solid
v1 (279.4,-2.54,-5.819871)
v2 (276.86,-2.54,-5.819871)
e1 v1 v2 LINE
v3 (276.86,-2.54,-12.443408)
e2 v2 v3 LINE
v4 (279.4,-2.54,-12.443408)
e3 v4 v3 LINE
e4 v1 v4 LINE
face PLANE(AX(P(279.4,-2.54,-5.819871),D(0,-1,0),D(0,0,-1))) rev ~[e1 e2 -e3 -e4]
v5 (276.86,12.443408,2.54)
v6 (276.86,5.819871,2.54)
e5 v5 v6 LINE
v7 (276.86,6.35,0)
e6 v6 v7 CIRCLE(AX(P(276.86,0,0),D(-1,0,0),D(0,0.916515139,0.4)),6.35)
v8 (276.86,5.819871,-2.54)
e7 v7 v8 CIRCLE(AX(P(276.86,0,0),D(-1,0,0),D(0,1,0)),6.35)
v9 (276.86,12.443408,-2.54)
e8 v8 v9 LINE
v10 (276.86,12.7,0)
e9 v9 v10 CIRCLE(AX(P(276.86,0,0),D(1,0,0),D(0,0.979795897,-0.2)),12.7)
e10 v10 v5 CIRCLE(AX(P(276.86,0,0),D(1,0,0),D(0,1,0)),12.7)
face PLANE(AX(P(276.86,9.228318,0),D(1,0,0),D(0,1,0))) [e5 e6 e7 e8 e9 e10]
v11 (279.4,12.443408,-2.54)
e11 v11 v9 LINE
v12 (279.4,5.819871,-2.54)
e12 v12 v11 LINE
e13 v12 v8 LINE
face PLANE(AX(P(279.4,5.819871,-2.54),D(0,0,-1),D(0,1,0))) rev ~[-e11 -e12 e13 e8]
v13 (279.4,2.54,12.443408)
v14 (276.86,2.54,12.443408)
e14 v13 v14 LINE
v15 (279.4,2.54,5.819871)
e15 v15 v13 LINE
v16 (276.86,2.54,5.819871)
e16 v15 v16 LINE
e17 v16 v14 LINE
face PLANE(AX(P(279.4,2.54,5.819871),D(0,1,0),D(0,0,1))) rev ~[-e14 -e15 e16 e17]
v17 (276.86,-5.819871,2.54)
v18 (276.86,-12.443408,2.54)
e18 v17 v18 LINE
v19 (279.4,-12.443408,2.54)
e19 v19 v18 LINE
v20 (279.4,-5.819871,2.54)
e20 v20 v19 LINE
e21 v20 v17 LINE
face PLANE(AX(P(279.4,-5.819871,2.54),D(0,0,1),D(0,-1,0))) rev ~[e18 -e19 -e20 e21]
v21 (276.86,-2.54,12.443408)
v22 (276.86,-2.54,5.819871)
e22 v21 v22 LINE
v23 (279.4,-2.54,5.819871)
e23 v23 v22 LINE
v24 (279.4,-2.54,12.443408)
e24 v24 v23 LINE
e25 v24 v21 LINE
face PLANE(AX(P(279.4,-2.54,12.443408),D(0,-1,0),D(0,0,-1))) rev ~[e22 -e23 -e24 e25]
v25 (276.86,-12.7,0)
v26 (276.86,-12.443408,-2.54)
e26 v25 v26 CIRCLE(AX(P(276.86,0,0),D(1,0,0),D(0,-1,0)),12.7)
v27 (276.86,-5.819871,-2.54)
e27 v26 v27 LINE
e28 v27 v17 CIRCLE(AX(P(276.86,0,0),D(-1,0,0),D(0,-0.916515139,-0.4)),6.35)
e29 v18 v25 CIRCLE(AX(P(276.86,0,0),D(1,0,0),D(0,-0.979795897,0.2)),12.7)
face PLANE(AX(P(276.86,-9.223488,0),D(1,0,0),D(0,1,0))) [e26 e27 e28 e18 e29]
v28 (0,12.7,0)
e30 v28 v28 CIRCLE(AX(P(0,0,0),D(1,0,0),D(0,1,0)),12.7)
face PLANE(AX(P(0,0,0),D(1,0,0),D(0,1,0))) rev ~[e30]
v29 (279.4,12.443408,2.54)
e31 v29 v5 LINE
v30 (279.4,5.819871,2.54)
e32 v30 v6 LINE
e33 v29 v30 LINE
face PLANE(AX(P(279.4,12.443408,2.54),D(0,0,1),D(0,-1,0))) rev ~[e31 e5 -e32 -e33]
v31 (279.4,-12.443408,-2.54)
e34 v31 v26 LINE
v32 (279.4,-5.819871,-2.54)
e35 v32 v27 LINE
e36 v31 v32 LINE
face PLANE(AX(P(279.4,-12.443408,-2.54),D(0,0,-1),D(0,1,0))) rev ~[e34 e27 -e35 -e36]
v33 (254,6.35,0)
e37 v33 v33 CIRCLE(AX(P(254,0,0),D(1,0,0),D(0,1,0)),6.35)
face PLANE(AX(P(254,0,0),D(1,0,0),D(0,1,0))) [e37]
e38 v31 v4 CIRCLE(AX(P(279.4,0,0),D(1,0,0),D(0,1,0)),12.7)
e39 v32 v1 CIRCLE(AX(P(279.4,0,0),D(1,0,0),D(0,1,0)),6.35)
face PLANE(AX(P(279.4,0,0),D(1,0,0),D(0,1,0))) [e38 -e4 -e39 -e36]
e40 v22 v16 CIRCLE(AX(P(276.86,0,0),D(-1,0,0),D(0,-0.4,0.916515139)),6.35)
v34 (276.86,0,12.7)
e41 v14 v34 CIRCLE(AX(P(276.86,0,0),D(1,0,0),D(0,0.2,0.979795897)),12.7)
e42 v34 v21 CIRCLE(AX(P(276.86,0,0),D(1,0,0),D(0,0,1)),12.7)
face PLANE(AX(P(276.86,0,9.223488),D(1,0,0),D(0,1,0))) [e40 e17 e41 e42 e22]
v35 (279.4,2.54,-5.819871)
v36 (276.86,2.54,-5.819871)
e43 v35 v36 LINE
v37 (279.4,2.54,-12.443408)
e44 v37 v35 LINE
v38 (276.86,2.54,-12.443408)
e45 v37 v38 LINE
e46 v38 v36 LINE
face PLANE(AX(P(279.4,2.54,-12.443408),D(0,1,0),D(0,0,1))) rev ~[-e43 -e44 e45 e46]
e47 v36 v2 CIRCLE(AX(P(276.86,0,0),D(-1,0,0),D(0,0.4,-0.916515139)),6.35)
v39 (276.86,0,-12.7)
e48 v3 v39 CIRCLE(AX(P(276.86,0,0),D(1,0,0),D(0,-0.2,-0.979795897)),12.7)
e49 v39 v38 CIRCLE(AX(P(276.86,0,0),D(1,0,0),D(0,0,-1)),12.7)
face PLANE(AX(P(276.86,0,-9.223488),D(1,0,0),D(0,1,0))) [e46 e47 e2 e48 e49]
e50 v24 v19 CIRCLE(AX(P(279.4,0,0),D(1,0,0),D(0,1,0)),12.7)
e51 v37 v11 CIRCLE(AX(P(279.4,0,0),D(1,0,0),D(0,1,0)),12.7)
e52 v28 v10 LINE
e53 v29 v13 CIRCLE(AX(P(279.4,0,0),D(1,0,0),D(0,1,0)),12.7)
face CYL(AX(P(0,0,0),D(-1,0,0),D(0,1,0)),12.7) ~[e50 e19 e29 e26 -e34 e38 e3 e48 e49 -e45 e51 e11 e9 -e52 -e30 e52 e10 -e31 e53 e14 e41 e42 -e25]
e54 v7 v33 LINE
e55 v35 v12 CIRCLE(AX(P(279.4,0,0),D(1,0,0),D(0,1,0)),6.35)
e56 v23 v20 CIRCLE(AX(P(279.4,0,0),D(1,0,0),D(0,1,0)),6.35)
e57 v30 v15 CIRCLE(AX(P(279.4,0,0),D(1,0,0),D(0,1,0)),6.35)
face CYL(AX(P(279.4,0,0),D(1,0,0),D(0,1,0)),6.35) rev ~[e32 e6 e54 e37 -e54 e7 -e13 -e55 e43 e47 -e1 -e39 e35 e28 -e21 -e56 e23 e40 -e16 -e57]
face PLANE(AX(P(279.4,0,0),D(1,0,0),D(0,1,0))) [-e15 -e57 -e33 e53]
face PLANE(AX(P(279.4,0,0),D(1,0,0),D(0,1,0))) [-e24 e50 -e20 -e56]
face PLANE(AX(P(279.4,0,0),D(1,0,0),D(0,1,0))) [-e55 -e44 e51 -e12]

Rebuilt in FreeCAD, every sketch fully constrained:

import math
import FreeCAD as App
import Part
import Sketcher
Q = App.Units.Quantity

doc = App.newDocument("Part")
body = doc.addObject("PartDesign::Body", "Body")

sketch1 = body.newObject("Sketcher::SketchObject", "Sketch")
sketch1.AttachmentSupport = (doc.getObject("YZ_Plane"), [""])
sketch1.MapMode = "FlatFace"
sketch1.addGeometry(Part.Circle(App.Vector(0, 0, 0), App.Vector(0, 0, 1), 13), False)
sketch1.addConstraint(Sketcher.Constraint("Coincident", 0, 3, -1, 1))
sketch1.addConstraint(Sketcher.Constraint("Diameter", 0, Q("1 in")))
pad1 = body.newObject("PartDesign::Pad", "Pad")
pad1.Profile = sketch1
pad1.Length = Q("11 in")

sketch2 = body.newObject("Sketcher::SketchObject", "Sketch001")
sketch2.AttachmentSupport = (doc.getObject("YZ_Plane"), [""])
sketch2.MapMode = "FlatFace"
sketch2.AttachmentOffset = App.Placement(App.Vector(0, 0, 11 * 25.4), App.Rotation())
sketch2.addGeometry(Part.Circle(App.Vector(0, 0, 0), App.Vector(0, 0, 1), 6), False)
sketch2.addConstraint(Sketcher.Constraint("Coincident", 0, 3, -1, 1))
sketch2.addConstraint(Sketcher.Constraint("Diameter", 0, Q("0.5 in")))
pocket1 = body.newObject("PartDesign::Pocket", "Pocket")
pocket1.Profile = sketch2
pocket1.Length = Q("1 in")

sketch3 = body.newObject("Sketcher::SketchObject", "Sketch002")
sketch3.AttachmentSupport = (doc.getObject("YZ_Plane"), [""])
sketch3.MapMode = "FlatFace"
sketch3.AttachmentOffset = App.Placement(App.Vector(0, 0, 11 * 25.4), App.Rotation())
sketch3.addGeometry(Part.LineSegment(App.Vector(-5.8, 2.5, 0), App.Vector(-12.4, 2.5, 0)), False)
sketch3.addGeometry(Part.ArcOfCircle(Part.Circle(App.Vector(0, 0, 0), App.Vector(0, 0, 1), 12.7), math.radians(168.46), math.radians(180)), False)
sketch3.addGeometry(Part.ArcOfCircle(Part.Circle(App.Vector(0, 0, 0), App.Vector(0, 0, 1), 12.7), math.radians(180), math.radians(191.54)), False)
sketch3.addGeometry(Part.LineSegment(App.Vector(-12.4, -2.5, 0), App.Vector(-5.8, -2.5, 0)), False)
sketch3.addGeometry(Part.ArcOfCircle(Part.Circle(App.Vector(0, 0, 0), App.Vector(0, 0, 1), 6.3), math.radians(156), math.radians(204)), False)
sketch3.addGeometry(Part.LineSegment(App.Vector(12.4, 2.5, 0), App.Vector(5.8, 2.5, 0)), False)
sketch3.addGeometry(Part.ArcOfCircle(Part.Circle(App.Vector(0, 0, 0), App.Vector(0, 0, 1), 6.4), math.radians(0), math.radians(24)), False)
sketch3.addGeometry(Part.ArcOfCircle(Part.Circle(App.Vector(0, 0, 0), App.Vector(0, 0, 1), 6.4), math.radians(-24), math.radians(0)), False)
sketch3.addGeometry(Part.LineSegment(App.Vector(5.8, -2.5, 0), App.Vector(12.4, -2.5, 0)), False)
sketch3.addGeometry(Part.ArcOfCircle(Part.Circle(App.Vector(0, 0, 0), App.Vector(0, 0, 1), 12.7), math.radians(-11.54), math.radians(0)), False)
sketch3.addGeometry(Part.ArcOfCircle(Part.Circle(App.Vector(0, 0, 0), App.Vector(0, 0, 1), 12.7), math.radians(0), math.radians(11.54)), False)
sketch3.addGeometry(Part.ArcOfCircle(Part.Circle(App.Vector(0, 0, 0), App.Vector(0, 0, 1), 12.7), math.radians(90), math.radians(101.54)), False)
sketch3.addGeometry(Part.LineSegment(App.Vector(-2.5, 12.4, 0), App.Vector(-2.5, 5.8, 0)), False)
sketch3.addGeometry(Part.ArcOfCircle(Part.Circle(App.Vector(0, 0, 0), App.Vector(0, 0, 1), 6.3), math.radians(66), math.radians(114)), False)
sketch3.addGeometry(Part.LineSegment(App.Vector(2.5, 5.8, 0), App.Vector(2.5, 12.4, 0)), False)
sketch3.addGeometry(Part.ArcOfCircle(Part.Circle(App.Vector(0, 0, 0), App.Vector(0, 0, 1), 12.7), math.radians(78.46), math.radians(90)), False)
sketch3.addGeometry(Part.LineSegment(App.Vector(-2.5, -5.8, 0), App.Vector(-2.5, -12.4, 0)), False)
sketch3.addGeometry(Part.ArcOfCircle(Part.Circle(App.Vector(0, 0, 0), App.Vector(0, 0, 1), 12.7), math.radians(-101.54), math.radians(-90)), False)
sketch3.addGeometry(Part.ArcOfCircle(Part.Circle(App.Vector(0, 0, 0), App.Vector(0, 0, 1), 12.7), math.radians(-90), math.radians(-78.46)), False)
sketch3.addGeometry(Part.LineSegment(App.Vector(2.5, -12.4, 0), App.Vector(2.5, -5.8, 0)), False)
sketch3.addGeometry(Part.ArcOfCircle(Part.Circle(App.Vector(0, 0, 0), App.Vector(0, 0, 1), 6.3), math.radians(-114), math.radians(-66)), False)
sketch3.addConstraint(Sketcher.Constraint("Coincident", 0, 2, 1, 1))
sketch3.addConstraint(Sketcher.Constraint("Tangent", 1, 2, 2, 1))
sketch3.addConstraint(Sketcher.Constraint("Coincident", 2, 2, 3, 1))
sketch3.addConstraint(Sketcher.Constraint("Coincident", 3, 2, 4, 2))
sketch3.addConstraint(Sketcher.Constraint("Coincident", 4, 1, 0, 1))
sketch3.addConstraint(Sketcher.Constraint("Coincident", 5, 2, 6, 2))
sketch3.addConstraint(Sketcher.Constraint("Tangent", 6, 1, 7, 2))
sketch3.addConstraint(Sketcher.Constraint("Coincident", 7, 1, 8, 1))
sketch3.addConstraint(Sketcher.Constraint("Coincident", 8, 2, 9, 1))
sketch3.addConstraint(Sketcher.Constraint("Tangent", 9, 2, 10, 1))
sketch3.addConstraint(Sketcher.Constraint("Coincident", 10, 2, 5, 1))
sketch3.addConstraint(Sketcher.Constraint("Coincident", 11, 2, 12, 1))
sketch3.addConstraint(Sketcher.Constraint("Coincident", 12, 2, 13, 2))
sketch3.addConstraint(Sketcher.Constraint("Coincident", 13, 1, 14, 1))
sketch3.addConstraint(Sketcher.Constraint("Coincident", 14, 2, 15, 1))
sketch3.addConstraint(Sketcher.Constraint("Tangent", 15, 2, 11, 1))
sketch3.addConstraint(Sketcher.Constraint("Coincident", 16, 2, 17, 1))
sketch3.addConstraint(Sketcher.Constraint("Tangent", 17, 2, 18, 1))
sketch3.addConstraint(Sketcher.Constraint("Coincident", 18, 2, 19, 1))
sketch3.addConstraint(Sketcher.Constraint("Coincident", 19, 2, 20, 2))
sketch3.addConstraint(Sketcher.Constraint("Coincident", 20, 1, 16, 1))
sketch3.addConstraint(Sketcher.Constraint("Horizontal", 0))
sketch3.addConstraint(Sketcher.Constraint("Horizontal", 3))
sketch3.addConstraint(Sketcher.Constraint("Horizontal", 5))
sketch3.addConstraint(Sketcher.Constraint("Horizontal", 8))
sketch3.addConstraint(Sketcher.Constraint("Vertical", 12))
sketch3.addConstraint(Sketcher.Constraint("Vertical", 14))
sketch3.addConstraint(Sketcher.Constraint("Vertical", 16))
sketch3.addConstraint(Sketcher.Constraint("Vertical", 19))
sketch3.addConstraint(Sketcher.Constraint("Coincident", 1, 3, -1, 1))
sketch3.addConstraint(Sketcher.Constraint("Coincident", 4, 3, -1, 1))
sketch3.addConstraint(Sketcher.Constraint("Coincident", 6, 3, -1, 1))
sketch3.addConstraint(Sketcher.Constraint("Coincident", 9, 3, -1, 1))
sketch3.addConstraint(Sketcher.Constraint("Coincident", 11, 3, -1, 1))
sketch3.addConstraint(Sketcher.Constraint("Coincident", 13, 3, -1, 1))
sketch3.addConstraint(Sketcher.Constraint("Coincident", 17, 3, -1, 1))
sketch3.addConstraint(Sketcher.Constraint("Coincident", 20, 3, -1, 1))
sketch3.addConstraint(Sketcher.Constraint("Equal", 1, 2))
sketch3.addConstraint(Sketcher.Constraint("Equal", 4, 6))
sketch3.addConstraint(Sketcher.Constraint("Equal", 6, 7))
sketch3.addConstraint(Sketcher.Constraint("Equal", 2, 9))
sketch3.addConstraint(Sketcher.Constraint("Equal", 9, 10))
sketch3.addConstraint(Sketcher.Constraint("Equal", 10, 11))
sketch3.addConstraint(Sketcher.Constraint("Equal", 7, 13))
sketch3.addConstraint(Sketcher.Constraint("Equal", 11, 15))
sketch3.addConstraint(Sketcher.Constraint("Equal", 15, 17))
sketch3.addConstraint(Sketcher.Constraint("Equal", 17, 18))
sketch3.addConstraint(Sketcher.Constraint("Equal", 13, 20))
sketch3.addConstraint(Sketcher.Constraint("PointOnObject", 1, 2, -1))
sketch3.addConstraint(Sketcher.Constraint("PointOnObject", 6, 1, -1))
sketch3.addConstraint(Sketcher.Constraint("PointOnObject", 9, 2, -1))
sketch3.addConstraint(Sketcher.Constraint("PointOnObject", 15, 2, -2))
sketch3.addConstraint(Sketcher.Constraint("PointOnObject", 17, 2, -2))
sketch3.addConstraint(Sketcher.Constraint("Horizontal", 4, 1, 5, 2))
sketch3.addConstraint(Sketcher.Constraint("Horizontal", 3, 2, 7, 1))
sketch3.addConstraint(Sketcher.Constraint("Horizontal", 12, 2, 13, 1))
sketch3.addConstraint(Sketcher.Constraint("Horizontal", 16, 2, 18, 2))
sketch3.addConstraint(Sketcher.Constraint("Vertical", 0, 2, 2, 2))
sketch3.addConstraint(Sketcher.Constraint("Vertical", 12, 2, 16, 2))
sketch3.addConstraint(Sketcher.Constraint("Equal", 8, 12))
sketch3.addConstraint(Sketcher.Constraint("Radius", 1, Q("0.5 in")))
sketch3.addConstraint(Sketcher.Constraint("Radius", 4, Q("0.25 in")))
sketch3.addConstraint(Sketcher.Constraint("DistanceY", -1, 1, 0, 2, Q("0.1 in")))
pocket2 = body.newObject("PartDesign::Pocket", "Pocket001")
pocket2.Profile = sketch3
pocket2.Length = Q("0.1 in")

doc.recompute()
